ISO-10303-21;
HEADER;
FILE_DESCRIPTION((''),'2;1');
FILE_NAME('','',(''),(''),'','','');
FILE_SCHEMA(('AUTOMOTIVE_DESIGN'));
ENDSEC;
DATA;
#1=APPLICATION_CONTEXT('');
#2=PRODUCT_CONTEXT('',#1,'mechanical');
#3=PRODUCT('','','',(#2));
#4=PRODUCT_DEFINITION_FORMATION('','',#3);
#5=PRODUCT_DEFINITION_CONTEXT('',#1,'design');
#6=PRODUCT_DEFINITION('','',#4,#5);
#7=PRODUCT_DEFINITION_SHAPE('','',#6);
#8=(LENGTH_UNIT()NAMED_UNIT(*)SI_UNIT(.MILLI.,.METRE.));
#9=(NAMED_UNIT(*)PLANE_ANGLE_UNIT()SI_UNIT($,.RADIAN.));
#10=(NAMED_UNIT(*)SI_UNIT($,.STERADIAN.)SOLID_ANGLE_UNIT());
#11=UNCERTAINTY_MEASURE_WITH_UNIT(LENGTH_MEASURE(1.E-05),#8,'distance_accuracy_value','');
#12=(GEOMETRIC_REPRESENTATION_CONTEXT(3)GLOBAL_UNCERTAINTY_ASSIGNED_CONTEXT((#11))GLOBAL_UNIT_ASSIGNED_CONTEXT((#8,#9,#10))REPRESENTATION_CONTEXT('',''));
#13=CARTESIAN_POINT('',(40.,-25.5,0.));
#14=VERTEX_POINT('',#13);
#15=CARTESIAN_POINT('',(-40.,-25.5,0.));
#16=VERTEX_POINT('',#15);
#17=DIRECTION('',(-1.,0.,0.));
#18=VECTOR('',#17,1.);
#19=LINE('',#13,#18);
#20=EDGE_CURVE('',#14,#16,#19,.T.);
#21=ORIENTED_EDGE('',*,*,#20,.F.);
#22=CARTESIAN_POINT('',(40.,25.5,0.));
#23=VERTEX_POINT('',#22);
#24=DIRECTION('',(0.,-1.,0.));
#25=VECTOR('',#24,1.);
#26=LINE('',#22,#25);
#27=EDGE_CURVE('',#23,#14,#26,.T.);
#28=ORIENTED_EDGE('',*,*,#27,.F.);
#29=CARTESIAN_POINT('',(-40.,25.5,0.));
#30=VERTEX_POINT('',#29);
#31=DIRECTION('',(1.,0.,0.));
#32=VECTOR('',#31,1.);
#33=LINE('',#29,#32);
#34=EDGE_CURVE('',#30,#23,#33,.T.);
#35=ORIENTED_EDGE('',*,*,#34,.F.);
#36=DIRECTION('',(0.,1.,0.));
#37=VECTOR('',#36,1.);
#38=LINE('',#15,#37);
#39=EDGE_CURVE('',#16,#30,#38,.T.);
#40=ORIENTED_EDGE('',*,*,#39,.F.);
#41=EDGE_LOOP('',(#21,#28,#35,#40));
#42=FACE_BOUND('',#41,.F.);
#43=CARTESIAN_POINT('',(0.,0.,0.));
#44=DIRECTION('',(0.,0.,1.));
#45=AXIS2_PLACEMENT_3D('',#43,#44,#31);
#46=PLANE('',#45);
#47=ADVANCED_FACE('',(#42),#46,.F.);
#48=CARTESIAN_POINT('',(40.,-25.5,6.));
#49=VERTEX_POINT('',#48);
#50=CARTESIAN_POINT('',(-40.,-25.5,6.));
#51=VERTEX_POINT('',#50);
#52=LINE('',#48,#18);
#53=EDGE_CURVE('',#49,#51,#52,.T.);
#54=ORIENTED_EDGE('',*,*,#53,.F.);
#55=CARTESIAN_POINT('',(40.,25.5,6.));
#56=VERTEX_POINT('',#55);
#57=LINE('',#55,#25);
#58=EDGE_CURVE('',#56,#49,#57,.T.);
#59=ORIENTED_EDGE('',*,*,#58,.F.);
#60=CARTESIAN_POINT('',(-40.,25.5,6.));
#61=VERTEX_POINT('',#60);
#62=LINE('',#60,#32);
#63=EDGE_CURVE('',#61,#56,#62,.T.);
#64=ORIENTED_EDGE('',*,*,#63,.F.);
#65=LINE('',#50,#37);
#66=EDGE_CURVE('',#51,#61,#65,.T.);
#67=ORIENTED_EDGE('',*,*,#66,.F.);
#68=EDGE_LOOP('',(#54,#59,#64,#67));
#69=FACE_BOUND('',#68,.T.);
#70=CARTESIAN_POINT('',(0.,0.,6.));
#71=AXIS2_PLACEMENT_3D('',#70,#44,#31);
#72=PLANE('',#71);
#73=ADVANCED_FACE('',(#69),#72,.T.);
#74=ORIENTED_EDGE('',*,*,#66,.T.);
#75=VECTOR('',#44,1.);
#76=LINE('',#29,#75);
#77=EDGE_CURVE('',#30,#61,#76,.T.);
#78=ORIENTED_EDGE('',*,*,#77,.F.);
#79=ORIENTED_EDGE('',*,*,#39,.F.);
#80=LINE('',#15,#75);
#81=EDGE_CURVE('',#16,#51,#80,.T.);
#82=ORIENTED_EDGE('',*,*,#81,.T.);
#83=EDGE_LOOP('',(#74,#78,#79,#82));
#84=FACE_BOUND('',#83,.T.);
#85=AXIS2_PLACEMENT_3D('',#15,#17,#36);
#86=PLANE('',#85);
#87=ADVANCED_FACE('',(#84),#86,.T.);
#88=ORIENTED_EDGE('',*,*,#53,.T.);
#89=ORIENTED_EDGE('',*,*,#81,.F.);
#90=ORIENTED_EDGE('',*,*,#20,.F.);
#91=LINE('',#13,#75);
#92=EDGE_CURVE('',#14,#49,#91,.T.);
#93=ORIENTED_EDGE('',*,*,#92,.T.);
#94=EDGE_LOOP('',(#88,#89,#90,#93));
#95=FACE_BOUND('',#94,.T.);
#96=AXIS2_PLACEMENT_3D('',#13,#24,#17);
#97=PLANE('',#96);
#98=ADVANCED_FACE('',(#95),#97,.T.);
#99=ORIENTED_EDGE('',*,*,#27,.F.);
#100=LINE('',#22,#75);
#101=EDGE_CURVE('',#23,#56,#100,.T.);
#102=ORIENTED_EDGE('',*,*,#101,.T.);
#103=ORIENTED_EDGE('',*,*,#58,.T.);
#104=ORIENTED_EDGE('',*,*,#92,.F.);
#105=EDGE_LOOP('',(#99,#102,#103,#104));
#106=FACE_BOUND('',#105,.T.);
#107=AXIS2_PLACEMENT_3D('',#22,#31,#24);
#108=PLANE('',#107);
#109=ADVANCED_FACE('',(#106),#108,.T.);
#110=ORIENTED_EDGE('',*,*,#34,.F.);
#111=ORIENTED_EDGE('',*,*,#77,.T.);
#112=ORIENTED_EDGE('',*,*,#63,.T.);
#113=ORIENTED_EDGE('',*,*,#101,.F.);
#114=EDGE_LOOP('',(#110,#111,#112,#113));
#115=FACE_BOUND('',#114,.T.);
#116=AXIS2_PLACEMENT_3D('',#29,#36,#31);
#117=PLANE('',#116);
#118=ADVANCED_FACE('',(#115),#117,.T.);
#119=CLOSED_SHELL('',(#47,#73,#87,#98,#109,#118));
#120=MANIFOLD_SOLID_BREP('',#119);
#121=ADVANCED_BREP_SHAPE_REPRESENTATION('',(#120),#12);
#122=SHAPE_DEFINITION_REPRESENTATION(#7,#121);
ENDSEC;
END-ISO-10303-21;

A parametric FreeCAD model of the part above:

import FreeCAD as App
import Part
import Sketcher

V = App.Vector


def add_polygon(sketch, points):
    """Adds a closed chain of lines whose ends are joined by coincident constraints."""
    first, n = sketch.GeometryCount, len(points)
    for a, b in zip(points, points[1:] + points[:1]):
        sketch.addGeometry(Part.LineSegment(App.Vector(*a, 0), App.Vector(*b, 0)), False)
    for i in range(n):
        sketch.addConstraint(Sketcher.Constraint("Coincident", first + i, 2, first + (i + 1) % n, 1))

doc = App.newDocument("Part")
body = doc.addObject("PartDesign::Body", "Body")

# Sketch on XY plane
sketch1 = body.newObject("Sketcher::SketchObject", "Sketch")
sketch1.AttachmentSupport = (doc.getObject("XY_Plane"), [""])
sketch1.MapMode = "FlatFace"
add_polygon(sketch1, [(40, 25.5), (-40, 25.5), (-40, -25.5), (40, -25.5)])  # lines 0-3
sketch1.addConstraint([
    Sketcher.Constraint("Horizontal", 0),
    Sketcher.Constraint("Vertical", 1),
    Sketcher.Constraint("Horizontal", 2),
    Sketcher.Constraint("Vertical", 3),
    Sketcher.Constraint("Symmetric", 0, 2, 2, 2, -1, 1),
    Sketcher.Constraint("DistanceX", 0, 2, 0, 1, 80.0),
    Sketcher.Constraint("DistanceY", 1, 2, 1, 1, 51.0),
])
pad1 = body.newObject("PartDesign::Pad", "Pad")
pad1.Profile = sketch1
pad1.Length = 6

doc.recompute()
